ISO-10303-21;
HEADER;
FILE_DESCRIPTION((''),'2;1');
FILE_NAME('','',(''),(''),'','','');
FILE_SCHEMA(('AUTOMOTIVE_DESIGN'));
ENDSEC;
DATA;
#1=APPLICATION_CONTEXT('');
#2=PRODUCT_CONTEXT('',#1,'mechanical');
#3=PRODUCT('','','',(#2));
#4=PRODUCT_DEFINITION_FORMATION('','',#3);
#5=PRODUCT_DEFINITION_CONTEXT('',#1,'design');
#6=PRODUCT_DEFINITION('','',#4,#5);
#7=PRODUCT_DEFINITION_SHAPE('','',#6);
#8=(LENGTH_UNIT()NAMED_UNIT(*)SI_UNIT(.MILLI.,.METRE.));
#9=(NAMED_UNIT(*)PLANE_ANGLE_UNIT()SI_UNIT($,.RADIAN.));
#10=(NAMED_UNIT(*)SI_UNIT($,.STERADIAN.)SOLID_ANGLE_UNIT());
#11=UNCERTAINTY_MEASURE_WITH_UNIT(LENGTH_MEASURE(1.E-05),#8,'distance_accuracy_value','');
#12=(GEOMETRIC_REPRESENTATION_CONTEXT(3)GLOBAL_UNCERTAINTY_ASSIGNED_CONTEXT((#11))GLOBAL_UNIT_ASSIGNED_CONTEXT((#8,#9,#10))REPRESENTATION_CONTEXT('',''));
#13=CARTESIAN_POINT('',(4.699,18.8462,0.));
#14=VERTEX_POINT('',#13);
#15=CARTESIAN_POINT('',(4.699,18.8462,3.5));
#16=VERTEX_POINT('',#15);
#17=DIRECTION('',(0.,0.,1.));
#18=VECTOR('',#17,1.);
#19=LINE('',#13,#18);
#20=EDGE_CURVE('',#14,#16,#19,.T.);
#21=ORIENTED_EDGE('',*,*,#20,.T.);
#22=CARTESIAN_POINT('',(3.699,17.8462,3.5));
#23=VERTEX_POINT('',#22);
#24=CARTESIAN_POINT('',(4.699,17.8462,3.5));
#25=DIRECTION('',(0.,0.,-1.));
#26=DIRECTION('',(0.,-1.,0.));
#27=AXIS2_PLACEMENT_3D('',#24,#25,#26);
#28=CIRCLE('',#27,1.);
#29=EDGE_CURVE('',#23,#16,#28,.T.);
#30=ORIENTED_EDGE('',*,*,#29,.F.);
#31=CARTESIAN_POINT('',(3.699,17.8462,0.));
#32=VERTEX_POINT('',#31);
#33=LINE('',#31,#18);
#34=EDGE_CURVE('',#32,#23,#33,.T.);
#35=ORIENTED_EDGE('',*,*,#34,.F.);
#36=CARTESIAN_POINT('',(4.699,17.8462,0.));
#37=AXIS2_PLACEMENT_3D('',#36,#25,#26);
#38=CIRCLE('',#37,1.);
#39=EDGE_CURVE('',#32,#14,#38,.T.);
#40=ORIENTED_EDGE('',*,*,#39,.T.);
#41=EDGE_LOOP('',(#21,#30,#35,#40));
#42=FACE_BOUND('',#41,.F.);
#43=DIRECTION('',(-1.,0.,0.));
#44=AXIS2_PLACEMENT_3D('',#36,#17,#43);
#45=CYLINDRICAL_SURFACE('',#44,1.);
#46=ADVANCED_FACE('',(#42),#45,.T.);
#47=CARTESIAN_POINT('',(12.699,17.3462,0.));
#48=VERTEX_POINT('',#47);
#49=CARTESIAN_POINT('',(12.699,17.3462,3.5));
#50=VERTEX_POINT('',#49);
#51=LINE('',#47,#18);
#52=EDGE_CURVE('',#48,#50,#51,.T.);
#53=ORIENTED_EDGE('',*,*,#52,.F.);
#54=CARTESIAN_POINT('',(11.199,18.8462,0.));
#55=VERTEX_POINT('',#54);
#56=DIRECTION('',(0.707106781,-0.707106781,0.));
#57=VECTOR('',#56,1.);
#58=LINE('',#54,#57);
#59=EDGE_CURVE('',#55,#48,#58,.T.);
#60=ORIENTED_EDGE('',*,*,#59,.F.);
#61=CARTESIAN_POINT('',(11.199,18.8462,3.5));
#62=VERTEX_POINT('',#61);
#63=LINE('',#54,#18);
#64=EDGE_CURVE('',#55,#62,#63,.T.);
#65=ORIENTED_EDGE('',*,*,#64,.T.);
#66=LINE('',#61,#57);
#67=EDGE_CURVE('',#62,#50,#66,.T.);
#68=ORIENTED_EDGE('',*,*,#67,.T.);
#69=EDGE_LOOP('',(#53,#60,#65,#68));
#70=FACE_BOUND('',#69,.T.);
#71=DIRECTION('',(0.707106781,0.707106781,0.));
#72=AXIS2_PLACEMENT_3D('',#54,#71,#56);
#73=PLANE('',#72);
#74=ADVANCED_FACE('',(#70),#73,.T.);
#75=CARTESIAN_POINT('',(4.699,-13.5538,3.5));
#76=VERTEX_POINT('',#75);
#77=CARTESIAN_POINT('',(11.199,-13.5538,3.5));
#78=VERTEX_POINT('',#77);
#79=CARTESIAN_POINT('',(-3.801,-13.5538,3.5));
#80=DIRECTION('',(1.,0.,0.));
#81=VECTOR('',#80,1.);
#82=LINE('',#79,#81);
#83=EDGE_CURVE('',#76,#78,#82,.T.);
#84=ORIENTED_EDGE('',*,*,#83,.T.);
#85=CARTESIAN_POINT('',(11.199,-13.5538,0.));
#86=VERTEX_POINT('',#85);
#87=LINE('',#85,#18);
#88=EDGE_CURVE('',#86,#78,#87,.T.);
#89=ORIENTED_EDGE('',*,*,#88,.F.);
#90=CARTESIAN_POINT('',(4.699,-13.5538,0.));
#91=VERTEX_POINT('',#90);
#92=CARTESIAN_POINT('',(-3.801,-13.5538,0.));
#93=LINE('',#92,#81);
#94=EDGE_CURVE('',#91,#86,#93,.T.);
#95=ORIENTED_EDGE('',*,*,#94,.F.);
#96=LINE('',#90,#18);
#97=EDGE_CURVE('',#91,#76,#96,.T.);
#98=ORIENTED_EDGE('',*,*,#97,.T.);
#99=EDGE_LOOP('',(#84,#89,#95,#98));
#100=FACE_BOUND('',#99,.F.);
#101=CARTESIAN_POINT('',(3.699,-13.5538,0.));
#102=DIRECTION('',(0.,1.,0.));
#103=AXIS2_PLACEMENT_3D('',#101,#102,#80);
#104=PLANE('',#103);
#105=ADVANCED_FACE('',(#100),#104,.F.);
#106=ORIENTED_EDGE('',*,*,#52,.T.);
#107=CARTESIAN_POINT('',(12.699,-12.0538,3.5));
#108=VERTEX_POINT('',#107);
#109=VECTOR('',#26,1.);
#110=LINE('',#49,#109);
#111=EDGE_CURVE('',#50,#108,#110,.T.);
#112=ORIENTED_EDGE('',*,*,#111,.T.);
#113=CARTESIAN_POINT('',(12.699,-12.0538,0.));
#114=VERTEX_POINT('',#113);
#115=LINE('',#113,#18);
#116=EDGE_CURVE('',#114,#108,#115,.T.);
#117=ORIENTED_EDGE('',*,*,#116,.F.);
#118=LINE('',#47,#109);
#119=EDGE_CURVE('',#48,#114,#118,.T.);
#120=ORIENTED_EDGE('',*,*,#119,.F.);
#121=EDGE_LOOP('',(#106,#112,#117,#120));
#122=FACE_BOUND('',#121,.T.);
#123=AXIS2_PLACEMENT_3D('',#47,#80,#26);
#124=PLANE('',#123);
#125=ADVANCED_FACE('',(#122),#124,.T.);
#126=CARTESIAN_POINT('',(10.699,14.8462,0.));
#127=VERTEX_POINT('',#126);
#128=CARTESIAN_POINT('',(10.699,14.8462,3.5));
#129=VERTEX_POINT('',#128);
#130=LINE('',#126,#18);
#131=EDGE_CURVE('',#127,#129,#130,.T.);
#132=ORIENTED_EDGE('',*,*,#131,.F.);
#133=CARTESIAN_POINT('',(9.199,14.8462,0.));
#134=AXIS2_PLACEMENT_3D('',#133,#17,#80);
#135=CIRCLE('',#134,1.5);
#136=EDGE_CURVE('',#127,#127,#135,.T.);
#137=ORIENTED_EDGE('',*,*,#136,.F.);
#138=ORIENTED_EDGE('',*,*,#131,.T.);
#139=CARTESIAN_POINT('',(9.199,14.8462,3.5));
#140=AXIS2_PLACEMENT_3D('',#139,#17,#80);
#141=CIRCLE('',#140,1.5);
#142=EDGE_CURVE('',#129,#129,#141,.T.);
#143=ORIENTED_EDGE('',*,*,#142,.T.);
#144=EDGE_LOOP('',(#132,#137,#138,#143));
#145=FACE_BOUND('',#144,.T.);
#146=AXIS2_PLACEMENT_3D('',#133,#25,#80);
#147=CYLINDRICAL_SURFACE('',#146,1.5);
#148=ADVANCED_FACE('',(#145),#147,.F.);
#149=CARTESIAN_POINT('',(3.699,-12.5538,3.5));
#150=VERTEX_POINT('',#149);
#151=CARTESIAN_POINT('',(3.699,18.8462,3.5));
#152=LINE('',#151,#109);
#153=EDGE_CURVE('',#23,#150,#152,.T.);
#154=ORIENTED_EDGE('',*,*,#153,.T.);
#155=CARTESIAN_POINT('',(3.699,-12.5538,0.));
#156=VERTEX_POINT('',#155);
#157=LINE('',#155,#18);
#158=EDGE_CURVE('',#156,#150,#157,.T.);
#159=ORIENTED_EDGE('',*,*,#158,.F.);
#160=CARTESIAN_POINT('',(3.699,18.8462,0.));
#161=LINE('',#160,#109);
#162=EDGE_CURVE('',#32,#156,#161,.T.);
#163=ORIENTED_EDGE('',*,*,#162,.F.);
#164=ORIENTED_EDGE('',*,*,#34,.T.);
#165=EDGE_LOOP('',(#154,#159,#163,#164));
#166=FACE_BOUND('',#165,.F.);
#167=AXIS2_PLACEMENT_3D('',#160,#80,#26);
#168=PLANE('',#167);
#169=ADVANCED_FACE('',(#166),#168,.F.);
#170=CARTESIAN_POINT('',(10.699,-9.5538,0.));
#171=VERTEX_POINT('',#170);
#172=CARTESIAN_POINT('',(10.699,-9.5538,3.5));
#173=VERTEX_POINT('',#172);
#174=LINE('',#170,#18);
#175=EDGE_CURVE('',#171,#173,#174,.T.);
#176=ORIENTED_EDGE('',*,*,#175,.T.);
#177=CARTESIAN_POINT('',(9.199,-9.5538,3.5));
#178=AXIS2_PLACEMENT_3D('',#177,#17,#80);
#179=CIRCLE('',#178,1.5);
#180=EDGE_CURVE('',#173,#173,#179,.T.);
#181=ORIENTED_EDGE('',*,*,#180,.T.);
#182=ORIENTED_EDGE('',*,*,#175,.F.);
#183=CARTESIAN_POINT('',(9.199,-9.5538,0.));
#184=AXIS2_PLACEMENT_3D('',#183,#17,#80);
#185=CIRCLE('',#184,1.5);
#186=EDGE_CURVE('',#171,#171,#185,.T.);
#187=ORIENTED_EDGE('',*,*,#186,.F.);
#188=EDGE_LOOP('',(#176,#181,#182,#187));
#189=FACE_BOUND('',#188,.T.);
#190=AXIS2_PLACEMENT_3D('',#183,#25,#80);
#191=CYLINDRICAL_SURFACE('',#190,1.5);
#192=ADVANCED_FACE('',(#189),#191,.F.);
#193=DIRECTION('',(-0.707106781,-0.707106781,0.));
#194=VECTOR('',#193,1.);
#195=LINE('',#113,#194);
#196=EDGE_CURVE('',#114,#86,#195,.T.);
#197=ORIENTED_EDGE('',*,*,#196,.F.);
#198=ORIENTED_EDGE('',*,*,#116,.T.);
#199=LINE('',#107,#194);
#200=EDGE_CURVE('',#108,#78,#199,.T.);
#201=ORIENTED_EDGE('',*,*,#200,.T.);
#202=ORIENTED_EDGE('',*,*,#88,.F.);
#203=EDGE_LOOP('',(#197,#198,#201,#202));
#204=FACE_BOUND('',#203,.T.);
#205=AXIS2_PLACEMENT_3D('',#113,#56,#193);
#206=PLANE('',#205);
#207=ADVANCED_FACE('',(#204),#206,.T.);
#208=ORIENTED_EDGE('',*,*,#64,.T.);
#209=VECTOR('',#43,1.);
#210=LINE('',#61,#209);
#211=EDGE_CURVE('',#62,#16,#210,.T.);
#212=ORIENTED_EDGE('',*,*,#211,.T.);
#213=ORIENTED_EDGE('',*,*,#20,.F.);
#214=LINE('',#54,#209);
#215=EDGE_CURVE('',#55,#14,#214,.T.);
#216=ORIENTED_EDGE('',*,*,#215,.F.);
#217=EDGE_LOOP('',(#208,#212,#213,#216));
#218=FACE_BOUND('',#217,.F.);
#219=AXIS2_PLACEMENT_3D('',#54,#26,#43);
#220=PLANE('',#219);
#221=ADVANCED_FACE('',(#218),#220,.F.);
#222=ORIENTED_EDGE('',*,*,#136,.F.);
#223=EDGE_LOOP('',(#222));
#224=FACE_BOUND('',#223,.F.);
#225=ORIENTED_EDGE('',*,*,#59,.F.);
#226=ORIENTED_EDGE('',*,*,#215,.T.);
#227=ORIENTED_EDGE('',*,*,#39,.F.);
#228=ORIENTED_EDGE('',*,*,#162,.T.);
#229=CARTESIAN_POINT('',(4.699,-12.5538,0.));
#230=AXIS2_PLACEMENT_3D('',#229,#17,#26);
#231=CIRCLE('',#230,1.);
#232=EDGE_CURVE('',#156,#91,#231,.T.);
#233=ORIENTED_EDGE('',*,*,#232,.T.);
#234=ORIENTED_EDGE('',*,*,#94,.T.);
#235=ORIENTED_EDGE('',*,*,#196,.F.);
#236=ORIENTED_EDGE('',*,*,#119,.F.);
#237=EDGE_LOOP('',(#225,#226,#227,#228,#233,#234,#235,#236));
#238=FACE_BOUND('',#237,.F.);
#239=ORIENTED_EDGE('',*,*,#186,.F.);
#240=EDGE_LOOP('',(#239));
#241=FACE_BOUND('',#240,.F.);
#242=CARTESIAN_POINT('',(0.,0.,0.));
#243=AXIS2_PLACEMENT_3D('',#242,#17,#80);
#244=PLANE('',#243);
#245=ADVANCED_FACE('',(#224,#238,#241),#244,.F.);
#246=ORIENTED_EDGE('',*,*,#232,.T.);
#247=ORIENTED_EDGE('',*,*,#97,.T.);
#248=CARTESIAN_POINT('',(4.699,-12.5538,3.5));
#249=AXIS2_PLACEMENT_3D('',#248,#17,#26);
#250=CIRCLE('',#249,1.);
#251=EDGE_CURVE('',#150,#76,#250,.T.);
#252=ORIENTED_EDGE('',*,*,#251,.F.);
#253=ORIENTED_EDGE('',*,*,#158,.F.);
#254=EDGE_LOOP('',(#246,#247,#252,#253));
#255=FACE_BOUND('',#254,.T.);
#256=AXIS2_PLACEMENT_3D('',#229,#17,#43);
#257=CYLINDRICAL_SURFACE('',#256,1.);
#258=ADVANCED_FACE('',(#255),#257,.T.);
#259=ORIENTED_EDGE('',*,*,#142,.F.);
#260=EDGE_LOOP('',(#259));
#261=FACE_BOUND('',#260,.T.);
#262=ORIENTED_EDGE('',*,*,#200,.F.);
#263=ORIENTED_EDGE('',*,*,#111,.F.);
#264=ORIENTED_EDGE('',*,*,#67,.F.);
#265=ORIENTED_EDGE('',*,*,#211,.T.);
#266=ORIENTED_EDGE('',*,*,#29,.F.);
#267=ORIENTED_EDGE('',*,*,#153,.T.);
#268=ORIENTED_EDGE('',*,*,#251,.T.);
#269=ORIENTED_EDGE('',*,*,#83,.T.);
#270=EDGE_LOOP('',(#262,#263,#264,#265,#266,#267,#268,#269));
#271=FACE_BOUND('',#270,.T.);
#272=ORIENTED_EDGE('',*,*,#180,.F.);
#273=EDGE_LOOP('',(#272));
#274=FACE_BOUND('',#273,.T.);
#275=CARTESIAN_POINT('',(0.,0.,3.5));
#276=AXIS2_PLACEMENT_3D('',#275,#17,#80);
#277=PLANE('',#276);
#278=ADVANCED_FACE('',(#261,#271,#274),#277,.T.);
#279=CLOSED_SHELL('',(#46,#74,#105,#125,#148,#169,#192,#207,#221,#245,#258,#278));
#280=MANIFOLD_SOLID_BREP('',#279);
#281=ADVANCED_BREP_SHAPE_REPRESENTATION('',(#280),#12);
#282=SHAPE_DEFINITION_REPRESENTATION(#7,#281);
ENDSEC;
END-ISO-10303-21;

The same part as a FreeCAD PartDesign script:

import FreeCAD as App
import Part
import Sketcher

V = App.Vector
Q = App.Units.Quantity


def edges_at(feature, points):
    """Names of the edges that pass closest to the given points."""
    edges = feature.Shape.Edges
    near = lambda p: min(range(len(edges)), key=lambda i: edges[i].distToShape(Part.Vertex(*p))[0])
    return sorted({f"Edge{near(p) + 1}" for p in points})

doc = App.newDocument("Part")
params = doc.addObject("Spreadsheet::Sheet", "Params")
for row, (alias, value) in enumerate([
    ("sketch1_diameter", "3 mm"),
    ("sketch1_width", "7.5 mm"),
    ("sketch1_height", "32.4 mm"),
    ("pad1_length", "3.5 mm"),
    ("fillet_radius", "1 mm"),
], start=1):
    params.set(f"A{row}", alias)
    params.set(f"B{row}", "=" + value)
    params.setAlias(f"B{row}", alias)

body = doc.addObject("PartDesign::Body", "Body")

sketch1 = doc.addObject("Sketcher::SketchObject", "Sketch")
body.addObject(sketch1)
sketch1.AttachmentSupport = (doc.XY_Plane, [""])
sketch1.MapMode = "FlatFace"
sketch1.addGeometry([
    Part.LineSegment(V(3.699, 18.8462, 0), V(3.699, -13.5538, 0)),
    Part.LineSegment(V(3.699, -13.5538, 0), V(11.199, -13.5538, 0)),
    Part.LineSegment(V(11.199, -13.5538, 0), V(12.699, -12.0538, 0)),
    Part.LineSegment(V(12.699, -12.0538, 0), V(12.699, 17.3462, 0)),
    Part.LineSegment(V(12.699, 17.3462, 0), V(11.199, 18.8462, 0)),
    Part.LineSegment(V(11.199, 18.8462, 0), V(3.699, 18.8462, 0)),
    Part.Circle(V(9.199, -9.5538, 0), V(0, 0, 1), 1.5),
    Part.Circle(V(9.199, 14.8462, 0), V(0, 0, 1), 1.5),
], False)
sketch1.addConstraint([
    Sketcher.Constraint("Coincident", 0, 2, 1, 1),
    Sketcher.Constraint("Coincident", 1, 2, 2, 1),
    Sketcher.Constraint("Coincident", 2, 2, 3, 1),
    Sketcher.Constraint("Coincident", 3, 2, 4, 1),
    Sketcher.Constraint("Coincident", 4, 2, 5, 1),
    Sketcher.Constraint("Coincident", 5, 2, 0, 1),
    Sketcher.Constraint("Vertical", 0),
    Sketcher.Constraint("Horizontal", 1),
    Sketcher.Constraint("Vertical", 3),
    Sketcher.Constraint("Horizontal", 5),
    Sketcher.Constraint("Equal", 6, 7),
    Sketcher.Constraint("Perpendicular", 2, 4),
    Sketcher.Constraint("Vertical", 6, 3, 7, 3),
    Sketcher.Constraint("Vertical", 1, 2, 4, 2),
    Sketcher.Constraint("Equal", 2, 4),
    Sketcher.Constraint("Diameter", 6, Q("3 mm")),
    Sketcher.Constraint("DistanceX", 0, 2, 2, 2, Q("9 mm")),
    Sketcher.Constraint("DistanceX", 1, 1, 1, 2, Q("7.5 mm")),
    Sketcher.Constraint("DistanceY", 0, 2, 0, 1, Q("32.4 mm")),
    Sketcher.Constraint("DistanceY", 0, 2, 6, 3, Q("4 mm")),
    Sketcher.Constraint("DistanceX", 6, 3, 1, 2, Q("2 mm")),
    Sketcher.Constraint("DistanceY", 7, 3, 4, 2, Q("4 mm")),
    Sketcher.Constraint("DistanceX", -1, 1, 6, 3, Q("9.199 mm")),
    Sketcher.Constraint("DistanceY", 6, 3, -1, 1, Q("9.5538 mm")),
])
sketch1.setExpression("Constraints[15]", "Params.sketch1_diameter")
sketch1.setExpression("Constraints[17]", "Params.sketch1_width")
sketch1.setExpression("Constraints[18]", "Params.sketch1_height")
pad1 = doc.addObject("PartDesign::Pad", "Pad")
body.addObject(pad1)
pad1.Profile = sketch1
pad1.setExpression("Length", "Params.pad1_length")
doc.recompute()

fillet = doc.addObject("PartDesign::Fillet", "Fillet")
body.addObject(fillet)
fillet.Base = (pad1, edges_at(pad1, [(3.699, -13.554, 1.75), (3.699, 18.846, 1.75)]))
fillet.setExpression("Radius", "Params.fillet_radius")

doc.recompute()
